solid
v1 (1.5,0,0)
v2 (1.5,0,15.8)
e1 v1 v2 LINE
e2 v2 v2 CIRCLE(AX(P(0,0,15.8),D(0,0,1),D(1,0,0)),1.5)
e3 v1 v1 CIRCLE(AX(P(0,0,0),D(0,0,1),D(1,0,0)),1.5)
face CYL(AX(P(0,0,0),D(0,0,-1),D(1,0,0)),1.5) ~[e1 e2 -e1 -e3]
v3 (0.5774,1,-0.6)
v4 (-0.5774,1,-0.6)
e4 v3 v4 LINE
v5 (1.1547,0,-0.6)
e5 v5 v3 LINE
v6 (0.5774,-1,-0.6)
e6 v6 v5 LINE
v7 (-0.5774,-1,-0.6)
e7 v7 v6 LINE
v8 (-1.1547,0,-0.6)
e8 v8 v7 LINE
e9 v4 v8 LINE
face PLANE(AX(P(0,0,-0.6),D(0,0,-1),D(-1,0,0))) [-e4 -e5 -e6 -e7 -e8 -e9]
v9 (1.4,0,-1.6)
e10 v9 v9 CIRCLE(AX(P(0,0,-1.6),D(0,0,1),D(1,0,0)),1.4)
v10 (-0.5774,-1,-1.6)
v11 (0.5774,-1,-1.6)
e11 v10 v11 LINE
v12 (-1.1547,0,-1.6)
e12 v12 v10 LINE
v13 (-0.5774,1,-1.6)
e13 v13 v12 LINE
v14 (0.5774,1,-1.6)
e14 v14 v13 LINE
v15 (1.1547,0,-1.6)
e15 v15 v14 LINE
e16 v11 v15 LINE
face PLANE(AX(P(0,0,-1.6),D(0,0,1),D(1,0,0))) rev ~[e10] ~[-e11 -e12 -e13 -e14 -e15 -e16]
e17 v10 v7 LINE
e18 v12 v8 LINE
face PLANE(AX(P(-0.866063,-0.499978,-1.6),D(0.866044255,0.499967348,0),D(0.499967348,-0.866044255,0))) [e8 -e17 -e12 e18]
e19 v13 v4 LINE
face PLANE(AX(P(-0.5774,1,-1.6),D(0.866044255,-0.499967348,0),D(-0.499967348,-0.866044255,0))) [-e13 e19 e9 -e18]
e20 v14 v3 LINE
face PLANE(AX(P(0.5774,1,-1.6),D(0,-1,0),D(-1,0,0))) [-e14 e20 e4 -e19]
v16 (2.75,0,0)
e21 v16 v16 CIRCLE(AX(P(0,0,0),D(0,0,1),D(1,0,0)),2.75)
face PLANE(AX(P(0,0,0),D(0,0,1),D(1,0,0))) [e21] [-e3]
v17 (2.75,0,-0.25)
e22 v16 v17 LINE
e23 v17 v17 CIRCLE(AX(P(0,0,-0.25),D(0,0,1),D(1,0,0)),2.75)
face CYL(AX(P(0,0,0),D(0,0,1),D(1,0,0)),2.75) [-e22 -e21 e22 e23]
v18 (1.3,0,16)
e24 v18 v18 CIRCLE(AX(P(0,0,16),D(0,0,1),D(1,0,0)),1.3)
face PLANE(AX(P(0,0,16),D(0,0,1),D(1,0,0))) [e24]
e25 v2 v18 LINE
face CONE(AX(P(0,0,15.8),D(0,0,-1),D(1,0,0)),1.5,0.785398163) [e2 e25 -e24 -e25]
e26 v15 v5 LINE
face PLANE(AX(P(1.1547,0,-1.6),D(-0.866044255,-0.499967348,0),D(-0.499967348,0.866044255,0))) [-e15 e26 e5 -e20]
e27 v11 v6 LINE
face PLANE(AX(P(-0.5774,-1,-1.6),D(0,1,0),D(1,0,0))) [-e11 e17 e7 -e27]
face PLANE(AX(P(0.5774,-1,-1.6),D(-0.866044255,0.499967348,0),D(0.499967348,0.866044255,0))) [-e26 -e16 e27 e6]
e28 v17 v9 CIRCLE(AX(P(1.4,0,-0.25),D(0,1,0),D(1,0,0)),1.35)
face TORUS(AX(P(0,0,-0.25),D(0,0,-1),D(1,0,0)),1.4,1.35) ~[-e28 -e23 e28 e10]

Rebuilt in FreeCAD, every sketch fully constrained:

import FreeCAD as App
import Part
import Sketcher

V = App.Vector
Q = App.Units.Quantity


def edges_at(feature, points):
    """Names of the edges that pass closest to the given points."""
    edges = feature.Shape.Edges
    near = lambda p: min(range(len(edges)), key=lambda i: edges[i].distToShape(Part.Vertex(*p))[0])
    return sorted({f"Edge{near(p) + 1}" for p in points})


def add_polygon(sketch, points):
    """Adds a closed chain of lines whose ends are joined by coincident constraints."""
    first, n = sketch.GeometryCount, len(points)
    for a, b in zip(points, points[1:] + points[:1]):
        sketch.addGeometry(Part.LineSegment(App.Vector(*a, 0), App.Vector(*b, 0)), False)
    for i in range(n):
        sketch.addConstraint(Sketcher.Constraint("Coincident", first + i, 2, first + (i + 1) % n, 1))

doc = App.newDocument("Part")
body = doc.addObject("PartDesign::Body", "Body")

sketch1 = body.newObject("Sketcher::SketchObject", "Sketch")
sketch1.AttachmentSupport = (doc.getObject("XY_Plane"), [""])
sketch1.MapMode = "FlatFace"
sketch1.addGeometry(Part.Circle(V(0, 0, 0), V(0, 0, 1), 1.5), False)
sketch1.addConstraint(Sketcher.Constraint("Coincident", 0, 3, -1, 1))
sketch1.addConstraint(Sketcher.Constraint("Diameter", 0, Q("3 mm")))
pad1 = body.newObject("PartDesign::Pad", "Pad")
pad1.Profile = sketch1
pad1.Length = 16

sketch2 = body.newObject("Sketcher::SketchObject", "Sketch001")
sketch2.AttachmentSupport = (doc.getObject("XY_Plane"), [""])
sketch2.MapMode = "FlatFace"
sketch2.addGeometry(Part.Circle(V(0, 0, 0), V(0, 0, 1), 2.8), False)
sketch2.addConstraint(Sketcher.Constraint("Coincident", 0, 3, -1, 1))
sketch2.addConstraint(Sketcher.Constraint("Diameter", 0, Q("5.5 mm")))
pad2 = body.newObject("PartDesign::Pad", "Pad001")
pad2.Profile = sketch2
pad2.Length = 1.6
pad2.Reversed = True

sketch3 = body.newObject("Sketcher::SketchObject", "Sketch002")
sketch3.AttachmentSupport = (doc.getObject("XY_Plane"), [""])
sketch3.MapMode = "FlatFace"
sketch3.AttachmentOffset = App.Placement(V(0, 0, -1.6), App.Rotation())
add_polygon(sketch3, [(-1.2, 0), (-0.6, 1), (0.6, 1), (1.2, 0), (0.6, -1), (-0.6, -1)])
sketch3.addConstraint(Sketcher.Constraint("Horizontal", 1))
sketch3.addConstraint(Sketcher.Constraint("Horizontal", 4))
sketch3.addConstraint(Sketcher.Constraint("Symmetric", 0, 2, 3, 2, -1, 1))
sketch3.addConstraint(Sketcher.Constraint("Symmetric", 2, 2, 5, 2, -1, 1))
sketch3.addConstraint(Sketcher.Constraint("PointOnObject", 2, 2, -1))
sketch3.addConstraint(Sketcher.Constraint("Parallel", 2, 5))
sketch3.addConstraint(Sketcher.Constraint("Vertical", 1, 2, 3, 2))
sketch3.addConstraint(Sketcher.Constraint("DistanceY", 3, 2, 1, 2, Q("2 mm")))
sketch3.addConstraint(Sketcher.Constraint("DistanceX", 1, 1, 1, 2, Q("1.1548 mm")))
sketch3.addConstraint(Sketcher.Constraint("DistanceX", 0, 2, 2, 2, Q("1.732 mm")))
pocket1 = body.newObject("PartDesign::Pocket", "Pocket")
pocket1.Profile = sketch3
pocket1.Length = 1
pocket1.Reversed = True
doc.recompute()

fillet = body.newObject("PartDesign::Fillet", "Fillet")
fillet.Base = (pocket1, edges_at(pocket1, [(-2.75, 0, -1.6)]))
fillet.Radius = 1.35
doc.recompute()

chamfer = body.newObject("PartDesign::Chamfer", "Chamfer")
chamfer.Base = (fillet, edges_at(fillet, [(-1.5, 0, 16)]))
chamfer.Size = 0.2

doc.recompute()
